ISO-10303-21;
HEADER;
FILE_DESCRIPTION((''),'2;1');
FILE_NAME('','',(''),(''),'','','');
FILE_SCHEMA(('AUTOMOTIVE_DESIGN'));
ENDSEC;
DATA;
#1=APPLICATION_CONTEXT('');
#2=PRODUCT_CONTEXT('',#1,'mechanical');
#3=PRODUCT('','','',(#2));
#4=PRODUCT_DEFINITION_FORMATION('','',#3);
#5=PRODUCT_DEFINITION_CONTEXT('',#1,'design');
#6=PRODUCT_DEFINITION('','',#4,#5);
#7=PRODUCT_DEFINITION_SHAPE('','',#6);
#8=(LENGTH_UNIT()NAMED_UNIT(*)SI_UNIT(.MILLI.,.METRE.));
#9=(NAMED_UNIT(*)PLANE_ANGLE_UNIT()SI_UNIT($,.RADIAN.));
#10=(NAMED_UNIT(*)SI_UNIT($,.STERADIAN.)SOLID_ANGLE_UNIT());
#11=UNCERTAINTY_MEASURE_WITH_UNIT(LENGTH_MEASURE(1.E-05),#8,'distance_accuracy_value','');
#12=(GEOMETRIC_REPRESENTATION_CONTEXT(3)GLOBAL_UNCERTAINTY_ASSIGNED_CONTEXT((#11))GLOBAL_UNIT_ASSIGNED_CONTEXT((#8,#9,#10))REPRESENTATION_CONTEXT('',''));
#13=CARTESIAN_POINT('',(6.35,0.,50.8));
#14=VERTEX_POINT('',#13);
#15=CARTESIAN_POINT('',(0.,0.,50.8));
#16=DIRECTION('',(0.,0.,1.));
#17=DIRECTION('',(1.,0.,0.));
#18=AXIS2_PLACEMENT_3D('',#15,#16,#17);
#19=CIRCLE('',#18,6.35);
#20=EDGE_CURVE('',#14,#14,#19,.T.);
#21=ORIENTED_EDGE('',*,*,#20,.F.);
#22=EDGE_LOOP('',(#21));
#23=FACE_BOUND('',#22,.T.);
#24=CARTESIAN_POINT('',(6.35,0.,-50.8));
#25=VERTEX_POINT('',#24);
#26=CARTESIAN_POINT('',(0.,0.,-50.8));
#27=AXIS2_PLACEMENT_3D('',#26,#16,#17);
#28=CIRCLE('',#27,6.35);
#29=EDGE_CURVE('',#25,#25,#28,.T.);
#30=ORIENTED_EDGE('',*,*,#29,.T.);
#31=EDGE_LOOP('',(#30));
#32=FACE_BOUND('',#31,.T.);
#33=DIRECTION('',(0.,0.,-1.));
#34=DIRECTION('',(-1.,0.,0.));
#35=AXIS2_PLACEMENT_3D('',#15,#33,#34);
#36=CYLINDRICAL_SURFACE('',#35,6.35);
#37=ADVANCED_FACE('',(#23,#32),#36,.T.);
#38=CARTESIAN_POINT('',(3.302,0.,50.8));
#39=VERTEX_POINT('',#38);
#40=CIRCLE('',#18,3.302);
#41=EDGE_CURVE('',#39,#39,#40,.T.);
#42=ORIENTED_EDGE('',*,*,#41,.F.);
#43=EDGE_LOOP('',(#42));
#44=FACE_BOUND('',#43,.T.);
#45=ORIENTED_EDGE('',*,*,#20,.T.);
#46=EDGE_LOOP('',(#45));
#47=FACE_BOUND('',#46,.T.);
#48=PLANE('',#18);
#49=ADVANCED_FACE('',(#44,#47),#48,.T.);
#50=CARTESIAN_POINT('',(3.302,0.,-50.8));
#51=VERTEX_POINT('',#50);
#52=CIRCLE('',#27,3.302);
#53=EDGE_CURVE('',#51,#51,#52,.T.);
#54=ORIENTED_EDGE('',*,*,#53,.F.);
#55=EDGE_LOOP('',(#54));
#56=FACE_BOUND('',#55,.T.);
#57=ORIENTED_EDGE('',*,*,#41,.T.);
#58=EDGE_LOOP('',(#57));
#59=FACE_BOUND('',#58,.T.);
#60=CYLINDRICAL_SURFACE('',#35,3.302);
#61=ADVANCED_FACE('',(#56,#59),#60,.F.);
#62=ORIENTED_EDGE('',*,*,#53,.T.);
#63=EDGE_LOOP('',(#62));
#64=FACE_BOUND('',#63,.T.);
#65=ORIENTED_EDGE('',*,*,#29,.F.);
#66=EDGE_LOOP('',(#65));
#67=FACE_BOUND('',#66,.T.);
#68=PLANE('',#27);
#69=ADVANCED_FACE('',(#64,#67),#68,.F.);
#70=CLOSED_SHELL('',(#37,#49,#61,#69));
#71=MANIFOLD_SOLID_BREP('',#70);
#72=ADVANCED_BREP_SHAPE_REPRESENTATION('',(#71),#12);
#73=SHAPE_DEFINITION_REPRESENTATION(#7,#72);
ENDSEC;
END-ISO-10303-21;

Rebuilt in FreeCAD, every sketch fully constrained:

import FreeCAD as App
import Part
import Sketcher
from FreeCAD import Vector
Q = App.Units.Quantity

doc = App.newDocument("Part")
body = doc.addObject("PartDesign::Body", "Body")

# Sketch on XY plane
sketch1 = body.newObject("Sketcher::SketchObject", "Sketch")
sketch1.AttachmentSupport = (doc.getObject("XY_Plane"), [""])
sketch1.MapMode = "FlatFace"
sketch1.addGeometry([
    Part.Circle(Vector(0, 0, 0), Vector(0, 0, 1), 6.35),
    Part.Circle(Vector(0, 0, 0), Vector(0, 0, 1), 3.302),
], False)
sketch1.addConstraint([
    Sketcher.Constraint("Coincident", 0, 3, -1, 1),
    Sketcher.Constraint("Coincident", 1, 3, -1, 1),
    Sketcher.Constraint("Diameter", 0, Q("0.5 in")),
    Sketcher.Constraint("Diameter", 1, Q("0.26 in")),
])
pad1 = body.newObject("PartDesign::Pad", "Pad")
pad1.Profile = sketch1
pad1.Type = "TwoLengths"
pad1.Length = Q("2 in")
pad1.Length2 = Q("2 in")

doc.recompute()
